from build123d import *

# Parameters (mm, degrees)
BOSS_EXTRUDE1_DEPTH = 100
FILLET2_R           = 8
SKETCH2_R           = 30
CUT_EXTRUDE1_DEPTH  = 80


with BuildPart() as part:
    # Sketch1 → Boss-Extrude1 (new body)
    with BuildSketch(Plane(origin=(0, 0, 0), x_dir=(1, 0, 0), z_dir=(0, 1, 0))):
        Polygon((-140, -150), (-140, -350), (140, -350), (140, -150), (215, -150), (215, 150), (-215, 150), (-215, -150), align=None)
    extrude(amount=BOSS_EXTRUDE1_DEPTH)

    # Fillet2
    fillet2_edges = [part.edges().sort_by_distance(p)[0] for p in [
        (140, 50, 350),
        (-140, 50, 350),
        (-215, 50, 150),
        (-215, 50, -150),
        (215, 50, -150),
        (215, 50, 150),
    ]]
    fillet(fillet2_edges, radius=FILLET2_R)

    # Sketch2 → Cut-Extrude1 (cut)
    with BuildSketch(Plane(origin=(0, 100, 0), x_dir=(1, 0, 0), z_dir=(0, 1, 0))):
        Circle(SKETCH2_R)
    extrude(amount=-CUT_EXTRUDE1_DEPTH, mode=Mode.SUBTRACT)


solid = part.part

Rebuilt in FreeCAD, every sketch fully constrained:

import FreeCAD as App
import Part
import Sketcher

V = App.Vector
Q = App.Units.Quantity


def edges_at(feature, points):
    """Names of the edges that pass closest to the given points."""
    edges = feature.Shape.Edges
    near = lambda p: min(range(len(edges)), key=lambda i: edges[i].distToShape(Part.Vertex(*p))[0])
    return sorted({f"Edge{near(p) + 1}" for p in points})

doc = App.newDocument("Part")
body = doc.addObject("PartDesign::Body", "Body")

sketch1 = doc.addObject("Sketcher::SketchObject", "Sketch")
body.addObject(sketch1)
sketch1.AttachmentSupport = (doc.XZ_Plane, [""])
sketch1.MapMode = "FlatFace"
sketch1.addGeometry(Part.LineSegment(V(-140, 150, 0), V(-140, 350, 0)), False)
sketch1.addGeometry(Part.LineSegment(V(-140, 350, 0), V(140, 350, 0)), False)
sketch1.addGeometry(Part.LineSegment(V(140, 350, 0), V(140, 150, 0)), False)
sketch1.addGeometry(Part.LineSegment(V(140, 150, 0), V(215, 150, 0)), False)
sketch1.addGeometry(Part.LineSegment(V(215, 150, 0), V(215, -150, 0)), False)
sketch1.addGeometry(Part.LineSegment(V(215, -150, 0), V(-215, -150, 0)), False)
sketch1.addGeometry(Part.LineSegment(V(-215, -150, 0), V(-215, 150, 0)), False)
sketch1.addGeometry(Part.LineSegment(V(-215, 150, 0), V(-140, 150, 0)), False)
sketch1.addConstraint(Sketcher.Constraint("Coincident", 0, 2, 1, 1))
sketch1.addConstraint(Sketcher.Constraint("Coincident", 1, 2, 2, 1))
sketch1.addConstraint(Sketcher.Constraint("Coincident", 2, 2, 3, 1))
sketch1.addConstraint(Sketcher.Constraint("Coincident", 3, 2, 4, 1))
sketch1.addConstraint(Sketcher.Constraint("Coincident", 4, 2, 5, 1))
sketch1.addConstraint(Sketcher.Constraint("Coincident", 5, 2, 6, 1))
sketch1.addConstraint(Sketcher.Constraint("Coincident", 6, 2, 7, 1))
sketch1.addConstraint(Sketcher.Constraint("Coincident", 7, 2, 0, 1))
sketch1.addConstraint(Sketcher.Constraint("Vertical", 0))
sketch1.addConstraint(Sketcher.Constraint("Horizontal", 1))
sketch1.addConstraint(Sketcher.Constraint("Vertical", 2))
sketch1.addConstraint(Sketcher.Constraint("Horizontal", 3))
sketch1.addConstraint(Sketcher.Constraint("Vertical", 4))
sketch1.addConstraint(Sketcher.Constraint("Horizontal", 5))
sketch1.addConstraint(Sketcher.Constraint("Vertical", 6))
sketch1.addConstraint(Sketcher.Constraint("Horizontal", 7))
sketch1.addConstraint(Sketcher.Constraint("Symmetric", 3, 2, 5, 2, -1, 1))
sketch1.addConstraint(Sketcher.Constraint("Symmetric", 2, 2, 7, 2, -2))
sketch1.addConstraint(Sketcher.Constraint("DistanceX", 1, 1, 1, 2, Q("280 mm")))
sketch1.addConstraint(Sketcher.Constraint("DistanceX", 3, 1, 3, 2, Q("75 mm")))
sketch1.addConstraint(Sketcher.Constraint("DistanceY", 0, 1, 0, 2, Q("200 mm")))
sketch1.addConstraint(Sketcher.Constraint("DistanceY", 4, 2, 4, 1, Q("300 mm")))
pad1 = doc.addObject("PartDesign::Pad", "Pad")
body.addObject(pad1)
pad1.Profile = sketch1
pad1.Length = 100
pad1.Reversed = True
doc.recompute()

fillet = doc.addObject("PartDesign::Fillet", "Fillet")
body.addObject(fillet)
fillet.Base = (pad1, edges_at(pad1, [
    (140, 50, 350),
    (-140, 50, 350),
    (-215, 50, 150),
    (-215, 50, -150),
    (215, 50, -150),
    (215, 50, 150),
]))
fillet.Radius = 8

sketch2 = doc.addObject("Sketcher::SketchObject", "Sketch001")
body.addObject(sketch2)
sketch2.AttachmentSupport = (doc.XZ_Plane, [""])
sketch2.MapMode = "FlatFace"
sketch2.AttachmentOffset = App.Placement(V(0, 0, -100), App.Rotation())
sketch2.addGeometry(Part.Circle(V(0, 0, 0), V(0, 0, 1), 30), False)
sketch2.addConstraint(Sketcher.Constraint("Coincident", 0, 3, -1, 1))
sketch2.addConstraint(Sketcher.Constraint("Diameter", 0, Q("60 mm")))
pocket1 = doc.addObject("PartDesign::Pocket", "Pocket")
body.addObject(pocket1)
pocket1.Profile = sketch2
pocket1.Length = 80
pocket1.Reversed = True

doc.recompute()
